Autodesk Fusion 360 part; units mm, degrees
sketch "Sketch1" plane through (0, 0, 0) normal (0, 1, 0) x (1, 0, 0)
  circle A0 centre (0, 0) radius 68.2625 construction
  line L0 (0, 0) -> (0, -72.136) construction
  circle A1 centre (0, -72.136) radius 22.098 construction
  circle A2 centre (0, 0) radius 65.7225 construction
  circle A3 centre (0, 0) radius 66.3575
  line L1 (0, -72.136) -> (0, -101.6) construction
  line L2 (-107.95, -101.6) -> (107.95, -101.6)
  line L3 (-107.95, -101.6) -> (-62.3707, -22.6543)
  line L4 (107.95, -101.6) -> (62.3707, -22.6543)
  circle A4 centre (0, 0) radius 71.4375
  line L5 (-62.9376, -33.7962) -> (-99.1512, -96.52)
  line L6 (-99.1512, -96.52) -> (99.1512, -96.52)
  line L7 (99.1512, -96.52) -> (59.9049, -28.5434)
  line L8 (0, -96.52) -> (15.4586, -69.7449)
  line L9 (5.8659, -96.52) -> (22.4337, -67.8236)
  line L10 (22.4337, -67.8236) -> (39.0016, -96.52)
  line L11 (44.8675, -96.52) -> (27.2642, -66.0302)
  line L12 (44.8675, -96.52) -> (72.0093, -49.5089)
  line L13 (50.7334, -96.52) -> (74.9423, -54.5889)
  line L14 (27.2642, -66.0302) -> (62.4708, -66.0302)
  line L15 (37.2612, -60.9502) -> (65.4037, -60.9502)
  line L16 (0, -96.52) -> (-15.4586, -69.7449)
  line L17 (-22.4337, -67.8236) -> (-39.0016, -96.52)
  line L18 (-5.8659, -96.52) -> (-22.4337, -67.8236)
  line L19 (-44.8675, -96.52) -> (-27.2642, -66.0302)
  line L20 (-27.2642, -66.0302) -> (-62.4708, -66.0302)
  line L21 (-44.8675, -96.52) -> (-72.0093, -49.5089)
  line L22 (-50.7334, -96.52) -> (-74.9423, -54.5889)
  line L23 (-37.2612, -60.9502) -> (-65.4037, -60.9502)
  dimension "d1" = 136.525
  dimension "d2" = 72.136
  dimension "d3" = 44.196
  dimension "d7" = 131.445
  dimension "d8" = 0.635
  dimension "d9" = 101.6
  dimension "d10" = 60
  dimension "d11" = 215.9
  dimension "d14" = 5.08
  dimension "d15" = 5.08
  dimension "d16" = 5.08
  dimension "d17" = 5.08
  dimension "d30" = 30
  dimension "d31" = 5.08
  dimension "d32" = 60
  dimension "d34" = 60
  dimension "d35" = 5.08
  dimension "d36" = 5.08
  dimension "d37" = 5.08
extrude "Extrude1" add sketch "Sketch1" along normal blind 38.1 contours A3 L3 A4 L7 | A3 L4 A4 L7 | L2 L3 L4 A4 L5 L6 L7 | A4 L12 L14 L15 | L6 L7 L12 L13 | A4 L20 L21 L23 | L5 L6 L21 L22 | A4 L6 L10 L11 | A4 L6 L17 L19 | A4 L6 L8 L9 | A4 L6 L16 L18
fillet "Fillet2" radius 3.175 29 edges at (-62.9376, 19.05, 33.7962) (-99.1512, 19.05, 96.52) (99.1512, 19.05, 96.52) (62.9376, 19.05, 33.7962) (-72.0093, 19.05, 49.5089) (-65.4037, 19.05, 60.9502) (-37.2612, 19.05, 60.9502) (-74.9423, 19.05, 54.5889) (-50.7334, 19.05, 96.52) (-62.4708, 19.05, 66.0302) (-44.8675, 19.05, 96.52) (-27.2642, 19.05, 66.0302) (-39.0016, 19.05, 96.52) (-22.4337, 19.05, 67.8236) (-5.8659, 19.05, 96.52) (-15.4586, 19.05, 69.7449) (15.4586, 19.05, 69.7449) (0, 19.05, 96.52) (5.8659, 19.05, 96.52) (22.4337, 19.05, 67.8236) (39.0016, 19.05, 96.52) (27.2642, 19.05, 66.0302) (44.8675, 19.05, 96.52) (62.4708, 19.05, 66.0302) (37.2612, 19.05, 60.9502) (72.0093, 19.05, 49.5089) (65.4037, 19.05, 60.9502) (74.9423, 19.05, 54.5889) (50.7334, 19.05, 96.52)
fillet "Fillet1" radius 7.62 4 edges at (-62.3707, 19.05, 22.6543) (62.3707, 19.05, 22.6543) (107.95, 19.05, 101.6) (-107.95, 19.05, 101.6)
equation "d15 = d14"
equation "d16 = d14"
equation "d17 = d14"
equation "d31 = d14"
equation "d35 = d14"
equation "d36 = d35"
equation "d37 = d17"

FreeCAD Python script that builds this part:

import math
import FreeCAD as App
import Part
import Sketcher
from FreeCAD import Vector
Q = App.Units.Quantity


def edges_at(feature, points):
    """Names of the edges that pass closest to the given points."""
    edges = feature.Shape.Edges
    near = lambda p: min(range(len(edges)), key=lambda i: edges[i].distToShape(Part.Vertex(*p))[0])
    return sorted({f"Edge{near(p) + 1}" for p in points})


def add_polygon(sketch, points):
    """Adds a closed chain of lines whose ends are joined by coincident constraints."""
    first, n = sketch.GeometryCount, len(points)
    for a, b in zip(points, points[1:] + points[:1]):
        sketch.addGeometry(Part.LineSegment(App.Vector(*a, 0), App.Vector(*b, 0)), False)
    for i in range(n):
        sketch.addConstraint(Sketcher.Constraint("Coincident", first + i, 2, first + (i + 1) % n, 1))

doc = App.newDocument("Part")
body = doc.addObject("PartDesign::Body", "Body")

# Sketch on XZ plane
sketch1 = doc.addObject("Sketcher::SketchObject", "Sketch")
body.addObject(sketch1)
sketch1.AttachmentSupport = (doc.XZ_Plane, [""])
sketch1.MapMode = "FlatFace"
sketch1.addGeometry(Part.LineSegment(Vector(-62, 23, 0), Vector(-108, 102, 0)), False)  # 0
sketch1.addGeometry(Part.LineSegment(Vector(-108, 102, 0), Vector(108, 102, 0)), False)  # 1
sketch1.addGeometry(Part.LineSegment(Vector(108, 102, 0), Vector(62, 23, 0)), False)  # 2
sketch1.addGeometry(Part.ArcOfCircle(Part.Circle(Vector(0, 0, 0), Vector(0, 0, 1), 66), math.radians(20), math.radians(160)), False)  # 3
sketch1.addGeometry(Part.ArcOfCircle(Part.Circle(Vector(0, 0, 0), Vector(0, 0, 1), 71), math.radians(28), math.radians(59)), False)  # 4
sketch1.addGeometry(Part.LineSegment(Vector(63, 34, 0), Vector(72, 50, 0)), False)  # 5
sketch1.addGeometry(Part.LineSegment(Vector(72, 50, 0), Vector(65, 61, 0)), False)  # 6
sketch1.addGeometry(Part.LineSegment(Vector(65, 61, 0), Vector(37, 61, 0)), False)  # 7
sketch1.addGeometry(Part.ArcOfCircle(Part.Circle(Vector(0, 0, 0), Vector(0, 0, 1), 71), math.radians(78), math.radians(102)), False)  # 8
sketch1.addGeometry(Part.LineSegment(Vector(15, 70, 0), Vector(0, 97, 0)), False)  # 9
sketch1.addGeometry(Part.LineSegment(Vector(0, 97, 0), Vector(-15, 70, 0)), False)  # 10
sketch1.addGeometry(Part.ArcOfCircle(Part.Circle(Vector(0, 0, 0), Vector(0, 0, 1), 71), math.radians(121), math.radians(152)), False)  # 11
sketch1.addGeometry(Part.LineSegment(Vector(-37, 61, 0), Vector(-65, 61, 0)), False)  # 12
sketch1.addGeometry(Part.LineSegment(Vector(-65, 61, 0), Vector(-72, 50, 0)), False)  # 13
sketch1.addGeometry(Part.LineSegment(Vector(-72, 50, 0), Vector(-63, 34, 0)), False)  # 14
add_polygon(sketch1, [(27, 66), (62, 66), (45, 97)])  # lines 15-17
add_polygon(sketch1, [(22, 68), (39, 97), (6, 97)])  # lines 18-20
add_polygon(sketch1, [(-22, 68), (-6, 97), (-39, 97)])  # lines 21-23
add_polygon(sketch1, [(-27, 66), (-45, 97), (-62, 66)])  # lines 24-26
add_polygon(sketch1, [(-99, 97), (-75, 55), (-51, 97)])  # lines 27-29
add_polygon(sketch1, [(99, 97), (51, 97), (75, 55)])  # lines 30-32
sketch1.addConstraint(Sketcher.Constraint("Coincident", 0, 2, 1, 1))
sketch1.addConstraint(Sketcher.Constraint("Coincident", 1, 2, 2, 1))
sketch1.addConstraint(Sketcher.Constraint("Coincident", 2, 2, 3, 1))
sketch1.addConstraint(Sketcher.Constraint("Coincident", 3, 2, 0, 1))
sketch1.addConstraint(Sketcher.Constraint("Coincident", 4, 1, 5, 1))
sketch1.addConstraint(Sketcher.Constraint("Coincident", 5, 2, 6, 1))
sketch1.addConstraint(Sketcher.Constraint("Coincident", 6, 2, 7, 1))
sketch1.addConstraint(Sketcher.Constraint("Coincident", 7, 2, 4, 2))
sketch1.addConstraint(Sketcher.Constraint("Coincident", 8, 1, 9, 1))
sketch1.addConstraint(Sketcher.Constraint("Coincident", 9, 2, 10, 1))
sketch1.addConstraint(Sketcher.Constraint("Coincident", 10, 2, 8, 2))
sketch1.addConstraint(Sketcher.Constraint("Coincident", 11, 1, 12, 1))
sketch1.addConstraint(Sketcher.Constraint("Coincident", 12, 2, 13, 1))
sketch1.addConstraint(Sketcher.Constraint("Coincident", 13, 2, 14, 1))
sketch1.addConstraint(Sketcher.Constraint("Coincident", 14, 2, 11, 2))
sketch1.addConstraint(Sketcher.Constraint("Horizontal", 1))
sketch1.addConstraint(Sketcher.Constraint("Horizontal", 7))
sketch1.addConstraint(Sketcher.Constraint("Horizontal", 12))
sketch1.addConstraint(Sketcher.Constraint("Horizontal", 15))
sketch1.addConstraint(Sketcher.Constraint("Horizontal", 19))
sketch1.addConstraint(Sketcher.Constraint("Horizontal", 22))
sketch1.addConstraint(Sketcher.Constraint("Horizontal", 26))
sketch1.addConstraint(Sketcher.Constraint("Horizontal", 29))
sketch1.addConstraint(Sketcher.Constraint("Horizontal", 30))
sketch1.addConstraint(Sketcher.Constraint("Coincident", 3, 3, -1, 1))
sketch1.addConstraint(Sketcher.Constraint("Coincident", 4, 3, -1, 1))
sketch1.addConstraint(Sketcher.Constraint("Coincident", 8, 3, -1, 1))
sketch1.addConstraint(Sketcher.Constraint("Coincident", 11, 3, -1, 1))
sketch1.addConstraint(Sketcher.Constraint("Equal", 4, 8))
sketch1.addConstraint(Sketcher.Constraint("Equal", 8, 11))
sketch1.addConstraint(Sketcher.Constraint("Symmetric", 6, 2, 12, 2, -2))
sketch1.addConstraint(Sketcher.Constraint("Symmetric", 5, 2, 13, 2, -2))
sketch1.addConstraint(Sketcher.Constraint("Symmetric", 19, 2, 21, 2, -2))
sketch1.addConstraint(Sketcher.Constraint("Symmetric", 20, 2, 23, 2, -2))
sketch1.addConstraint(Sketcher.Constraint("Symmetric", 16, 2, 24, 2, -2))
sketch1.addConstraint(Sketcher.Constraint("Symmetric", 15, 2, 25, 2, -2))
sketch1.addConstraint(Sketcher.Constraint("Symmetric", 28, 2, 30, 2, -2))
sketch1.addConstraint(Sketcher.Constraint("Symmetric", 27, 2, 31, 2, -2))
sketch1.addConstraint(Sketcher.Constraint("PointOnObject", 9, 2, -2))
sketch1.addConstraint(Sketcher.Constraint("Parallel", 2, 5))
sketch1.addConstraint(Sketcher.Constraint("Parallel", 0, 6))
sketch1.addConstraint(Sketcher.Constraint("Parallel", 6, 9))
sketch1.addConstraint(Sketcher.Constraint("Parallel", 5, 10))
sketch1.addConstraint(Sketcher.Constraint("Parallel", 10, 13))
sketch1.addConstraint(Sketcher.Constraint("Parallel", 9, 14))
sketch1.addConstraint(Sketcher.Constraint("Parallel", 14, 16))
sketch1.addConstraint(Sketcher.Constraint("Parallel", 13, 17))
sketch1.addConstraint(Sketcher.Constraint("Parallel", 17, 18))
sketch1.addConstraint(Sketcher.Constraint("Parallel", 16, 20))
sketch1.addConstraint(Sketcher.Constraint("Parallel", 20, 23))
sketch1.addConstraint(Sketcher.Constraint("Parallel", 23, 24))
sketch1.addConstraint(Sketcher.Constraint("Parallel", 24, 27))
sketch1.addConstraint(Sketcher.Constraint("Parallel", 25, 28))
sketch1.addConstraint(Sketcher.Constraint("Parallel", 28, 32))
sketch1.addConstraint(Sketcher.Constraint("Horizontal", 2, 2, 3, 2))
sketch1.addConstraint(Sketcher.Constraint("Horizontal", 9, 2, 16, 2))
sketch1.addConstraint(Sketcher.Constraint("Horizontal", 16, 2, 18, 2))
sketch1.addConstraint(Sketcher.Constraint("Horizontal", 24, 2, 28, 2))
sketch1.addConstraint(Sketcher.Constraint("DistanceX", 1, 1, 1, 2, Q("8.5 in")))
sketch1.addConstraint(Sketcher.Constraint("DistanceY", -1, 1, 0, 2, Q("4 in")))
sketch1.addConstraint(Sketcher.Constraint("Angle", 5, Q("60 deg")))
sketch1.addConstraint(Sketcher.Constraint("DistanceY", 6, 2, 15, 2, Q("0.2 in")))
sketch1.addConstraint(Sketcher.Constraint("DistanceY", 13, 2, 27, 2, Q("0.2 in")))
sketch1.addConstraint(Sketcher.Constraint("DistanceY", 29, 2, 0, 2, Q("0.2 in")))
sketch1.addConstraint(Sketcher.Constraint("Radius", 4, Q("2.8125 in")))
sketch1.addConstraint(Sketcher.Constraint("Radius", 3, Q("2.6125 in")))
sketch1.addConstraint(Sketcher.Constraint("DistanceX", 13, 2, -1, 1, Q("2.835 in")))
sketch1.addConstraint(Sketcher.Constraint("DistanceX", 27, 2, 25, 2, Q("0.491 in")))
sketch1.addConstraint(Sketcher.Constraint("Distance", 5, Q("0.7143 in")))
sketch1.addConstraint(Sketcher.Constraint("DistanceX", 7, 2, 7, 1, Q("28.1425 mm")))
sketch1.addConstraint(Sketcher.Constraint("DistanceX", 19, 2, 19, 1, Q("33.1357 mm")))
sketch1.addConstraint(Sketcher.Constraint("DistanceX", -1, 1, 17, 2, Q("1.0734 in")))
sketch1.addConstraint(Sketcher.Constraint("DistanceX", -1, 1, 18, 2, Q("1.5355 in")))
pad1 = doc.addObject("PartDesign::Pad", "Pad")
body.addObject(pad1)
pad1.Profile = sketch1
pad1.Length = Q("1.5 in")
pad1.Reversed = True
doc.recompute()

fillet = doc.addObject("PartDesign::Fillet", "Fillet")
body.addObject(fillet)
fillet.Base = (pad1, edges_at(pad1, [
    (-62.938, 19.05, 33.796),
    (-99.151, 19.05, 96.52),
    (99.151, 19.05, 96.52),
    (62.938, 19.05, 33.796),
    (-72.009, 19.05, 49.509),
    (-65.404, 19.05, 60.95),
    (-37.261, 19.05, 60.95),
    (-74.942, 19.05, 54.589),
    (-50.733, 19.05, 96.52),
    (-62.471, 19.05, 66.03),
    (-44.867, 19.05, 96.52),
    (-27.264, 19.05, 66.03),
    (-39.002, 19.05, 96.52),
    (-22.434, 19.05, 67.824),
    (-5.866, 19.05, 96.52),
    (-15.459, 19.05, 69.745),
    (15.459, 19.05, 69.745),
    (0, 19.05, 96.52),
    (5.866, 19.05, 96.52),
    (22.434, 19.05, 67.824),
    (39.002, 19.05, 96.52),
    (27.264, 19.05, 66.03),
    (44.867, 19.05, 96.52),
    (62.471, 19.05, 66.03),
    (37.261, 19.05, 60.95),
    (72.009, 19.05, 49.509),
    (65.404, 19.05, 60.95),
    (74.942, 19.05, 54.589),
    (50.733, 19.05, 96.52),
]))
fillet.Radius = Q("0.125 in")
doc.recompute()

fillet2 = doc.addObject("PartDesign::Fillet", "Fillet001")
body.addObject(fillet2)
fillet2.Base = (fillet, edges_at(fillet, [
    (-62.371, 19.05, 22.654),
    (62.371, 19.05, 22.654),
    (107.95, 19.05, 101.6),
    (-107.95, 19.05, 101.6),
]))
fillet2.Radius = Q("0.3 in")

doc.recompute()
